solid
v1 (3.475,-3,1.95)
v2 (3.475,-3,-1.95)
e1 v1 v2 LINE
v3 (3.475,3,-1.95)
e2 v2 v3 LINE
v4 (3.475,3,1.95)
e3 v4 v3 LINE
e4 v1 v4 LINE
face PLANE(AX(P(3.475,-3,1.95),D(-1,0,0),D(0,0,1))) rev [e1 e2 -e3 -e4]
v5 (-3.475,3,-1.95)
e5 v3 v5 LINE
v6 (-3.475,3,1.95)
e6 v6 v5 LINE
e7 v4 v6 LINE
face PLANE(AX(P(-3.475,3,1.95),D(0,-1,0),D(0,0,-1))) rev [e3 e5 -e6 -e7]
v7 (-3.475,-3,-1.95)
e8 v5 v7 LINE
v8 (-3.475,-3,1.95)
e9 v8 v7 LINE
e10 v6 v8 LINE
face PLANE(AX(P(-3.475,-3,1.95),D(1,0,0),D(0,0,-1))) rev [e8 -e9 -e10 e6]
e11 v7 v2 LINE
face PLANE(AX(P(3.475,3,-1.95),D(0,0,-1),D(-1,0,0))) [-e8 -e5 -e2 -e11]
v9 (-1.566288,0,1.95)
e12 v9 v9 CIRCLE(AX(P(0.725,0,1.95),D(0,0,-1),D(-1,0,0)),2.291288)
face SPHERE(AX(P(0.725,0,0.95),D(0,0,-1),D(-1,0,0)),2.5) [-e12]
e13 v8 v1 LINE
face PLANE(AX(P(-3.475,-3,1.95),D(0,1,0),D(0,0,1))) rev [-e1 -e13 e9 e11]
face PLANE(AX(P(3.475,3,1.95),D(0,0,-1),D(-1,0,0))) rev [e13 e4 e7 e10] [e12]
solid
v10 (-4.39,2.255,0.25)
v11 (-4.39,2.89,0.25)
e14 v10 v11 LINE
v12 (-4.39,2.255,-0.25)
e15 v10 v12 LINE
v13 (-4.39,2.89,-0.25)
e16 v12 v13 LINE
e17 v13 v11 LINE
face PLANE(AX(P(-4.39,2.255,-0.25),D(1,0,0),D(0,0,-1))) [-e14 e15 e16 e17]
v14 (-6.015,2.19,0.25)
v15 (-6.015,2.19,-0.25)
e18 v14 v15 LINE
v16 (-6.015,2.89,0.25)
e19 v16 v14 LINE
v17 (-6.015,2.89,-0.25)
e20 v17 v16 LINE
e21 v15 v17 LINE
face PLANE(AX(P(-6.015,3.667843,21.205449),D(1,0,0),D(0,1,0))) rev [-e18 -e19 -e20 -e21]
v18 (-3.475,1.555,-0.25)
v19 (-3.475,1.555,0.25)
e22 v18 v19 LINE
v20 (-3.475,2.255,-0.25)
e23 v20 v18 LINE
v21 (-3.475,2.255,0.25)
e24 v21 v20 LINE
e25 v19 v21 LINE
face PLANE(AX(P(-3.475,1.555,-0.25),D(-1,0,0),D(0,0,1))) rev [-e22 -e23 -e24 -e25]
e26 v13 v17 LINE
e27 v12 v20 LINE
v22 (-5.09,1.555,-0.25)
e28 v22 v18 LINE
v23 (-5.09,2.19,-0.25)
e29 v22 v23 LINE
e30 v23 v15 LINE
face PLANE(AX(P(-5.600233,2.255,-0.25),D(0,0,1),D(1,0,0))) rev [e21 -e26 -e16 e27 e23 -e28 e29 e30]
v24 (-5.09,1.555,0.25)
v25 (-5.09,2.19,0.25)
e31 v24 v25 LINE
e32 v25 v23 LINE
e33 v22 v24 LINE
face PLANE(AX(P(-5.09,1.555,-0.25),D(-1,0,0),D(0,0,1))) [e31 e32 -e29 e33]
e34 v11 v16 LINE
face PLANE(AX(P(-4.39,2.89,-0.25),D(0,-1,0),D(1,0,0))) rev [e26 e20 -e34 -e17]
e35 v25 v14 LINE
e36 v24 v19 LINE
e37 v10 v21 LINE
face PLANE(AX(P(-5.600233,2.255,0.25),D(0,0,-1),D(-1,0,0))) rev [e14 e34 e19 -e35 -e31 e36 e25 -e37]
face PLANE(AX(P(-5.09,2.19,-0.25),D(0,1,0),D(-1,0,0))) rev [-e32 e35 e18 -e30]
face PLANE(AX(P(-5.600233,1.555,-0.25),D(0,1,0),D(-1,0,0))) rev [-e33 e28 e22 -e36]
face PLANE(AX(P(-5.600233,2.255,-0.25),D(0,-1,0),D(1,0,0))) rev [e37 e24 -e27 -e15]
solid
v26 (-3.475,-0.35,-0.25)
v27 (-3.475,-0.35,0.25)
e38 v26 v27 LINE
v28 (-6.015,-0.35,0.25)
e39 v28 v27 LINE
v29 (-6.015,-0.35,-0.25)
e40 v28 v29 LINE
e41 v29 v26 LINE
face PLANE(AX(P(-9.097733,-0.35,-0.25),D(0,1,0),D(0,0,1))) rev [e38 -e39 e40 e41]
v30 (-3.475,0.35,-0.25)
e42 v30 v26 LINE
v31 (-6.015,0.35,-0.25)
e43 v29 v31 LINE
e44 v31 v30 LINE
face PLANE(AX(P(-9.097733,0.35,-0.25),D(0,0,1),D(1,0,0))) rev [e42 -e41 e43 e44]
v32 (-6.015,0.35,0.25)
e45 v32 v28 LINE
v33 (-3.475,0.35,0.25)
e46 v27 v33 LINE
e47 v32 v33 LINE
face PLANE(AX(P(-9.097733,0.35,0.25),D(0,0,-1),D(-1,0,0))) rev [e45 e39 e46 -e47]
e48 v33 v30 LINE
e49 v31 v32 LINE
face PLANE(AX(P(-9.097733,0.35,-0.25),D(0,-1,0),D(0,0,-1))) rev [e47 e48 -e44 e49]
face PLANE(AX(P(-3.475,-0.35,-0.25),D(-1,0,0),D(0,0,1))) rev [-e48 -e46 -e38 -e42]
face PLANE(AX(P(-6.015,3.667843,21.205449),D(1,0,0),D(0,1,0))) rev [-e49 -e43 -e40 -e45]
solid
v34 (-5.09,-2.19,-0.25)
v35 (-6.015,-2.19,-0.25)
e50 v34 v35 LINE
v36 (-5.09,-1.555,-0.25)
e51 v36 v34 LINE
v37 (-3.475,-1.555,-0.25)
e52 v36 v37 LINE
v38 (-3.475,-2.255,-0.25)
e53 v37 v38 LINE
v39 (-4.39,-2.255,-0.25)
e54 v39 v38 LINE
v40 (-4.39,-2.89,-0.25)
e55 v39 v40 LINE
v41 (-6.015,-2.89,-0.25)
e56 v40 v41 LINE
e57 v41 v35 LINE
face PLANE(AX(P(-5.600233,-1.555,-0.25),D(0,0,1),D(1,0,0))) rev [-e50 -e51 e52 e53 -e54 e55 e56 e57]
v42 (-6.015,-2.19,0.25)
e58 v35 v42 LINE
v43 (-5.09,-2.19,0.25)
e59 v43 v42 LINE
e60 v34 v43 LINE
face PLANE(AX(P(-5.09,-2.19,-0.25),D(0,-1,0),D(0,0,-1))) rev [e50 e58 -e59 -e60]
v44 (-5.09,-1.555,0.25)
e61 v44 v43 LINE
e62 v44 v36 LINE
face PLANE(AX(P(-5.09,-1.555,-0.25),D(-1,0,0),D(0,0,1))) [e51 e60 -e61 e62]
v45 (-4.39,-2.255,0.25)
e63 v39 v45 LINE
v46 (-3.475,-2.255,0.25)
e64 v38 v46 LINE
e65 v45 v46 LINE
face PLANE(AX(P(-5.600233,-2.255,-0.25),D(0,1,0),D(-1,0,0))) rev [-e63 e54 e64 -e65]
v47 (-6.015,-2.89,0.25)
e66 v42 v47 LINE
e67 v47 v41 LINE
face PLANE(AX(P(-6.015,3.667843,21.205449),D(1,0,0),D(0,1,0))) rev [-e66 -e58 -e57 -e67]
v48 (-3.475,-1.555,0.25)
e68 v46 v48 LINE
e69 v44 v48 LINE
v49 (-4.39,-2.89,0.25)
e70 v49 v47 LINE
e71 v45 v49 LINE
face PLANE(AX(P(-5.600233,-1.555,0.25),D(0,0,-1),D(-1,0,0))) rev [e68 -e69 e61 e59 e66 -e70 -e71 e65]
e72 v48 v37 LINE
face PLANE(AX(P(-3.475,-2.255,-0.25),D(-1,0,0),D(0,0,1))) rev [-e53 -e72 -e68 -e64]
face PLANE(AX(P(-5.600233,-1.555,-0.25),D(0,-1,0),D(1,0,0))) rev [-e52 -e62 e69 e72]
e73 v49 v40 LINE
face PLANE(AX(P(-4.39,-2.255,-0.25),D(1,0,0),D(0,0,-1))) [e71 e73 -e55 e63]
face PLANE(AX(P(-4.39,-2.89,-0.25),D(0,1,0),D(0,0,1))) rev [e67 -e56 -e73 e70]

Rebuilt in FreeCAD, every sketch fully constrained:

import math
import FreeCAD as App
import Part
import Sketcher
from FreeCAD import Vector

doc = App.newDocument("Part")
body = doc.addObject("PartDesign::Body", "Body")

# Sketch on XY plane
sketch1 = body.newObject("Sketcher::SketchObject", "Sketch")
sketch1.AttachmentSupport = (doc.getObject("XY_Plane"), [""])
sketch1.MapMode = "FlatFace"
sketch1.addGeometry(Part.LineSegment(Vector(-3, 3, 0), Vector(-3, -3, 0)), False)
sketch1.addGeometry(Part.LineSegment(Vector(-3, -3, 0), Vector(3, -3, 0)), False)
sketch1.addGeometry(Part.LineSegment(Vector(3, -3, 0), Vector(3, 3, 0)), False)
sketch1.addGeometry(Part.LineSegment(Vector(3, 3, 0), Vector(-3, 3, 0)), False)
sketch1.addConstraint(Sketcher.Constraint("Coincident", 0, 2, 1, 1))
sketch1.addConstraint(Sketcher.Constraint("Coincident", 1, 2, 2, 1))
sketch1.addConstraint(Sketcher.Constraint("Coincident", 2, 2, 3, 1))
sketch1.addConstraint(Sketcher.Constraint("Coincident", 3, 2, 0, 1))
sketch1.addConstraint(Sketcher.Constraint("Vertical", 0))
sketch1.addConstraint(Sketcher.Constraint("Horizontal", 1))
sketch1.addConstraint(Sketcher.Constraint("Vertical", 2))
sketch1.addConstraint(Sketcher.Constraint("Horizontal", 3))
sketch1.addConstraint(Sketcher.Constraint("Symmetric", 0, 2, 2, 2, -1, 1))
sketch1.addConstraint(Sketcher.Constraint("DistanceY", 0, 2, 0, 1, 6.0))
sketch1.addConstraint(Sketcher.Constraint("DistanceX", 1, 1, 1, 2, 6.95))
pad1 = body.newObject("PartDesign::Pad", "Pad")
pad1.Profile = sketch1
pad1.Length = 3.9
pad1.Midplane = True

# Sketch on XZ plane
sketch2 = body.newObject("Sketcher::SketchObject", "Sketch001")
sketch2.AttachmentSupport = (doc.getObject("XZ_Plane"), [""])
sketch2.MapMode = "FlatFace"
sketch2.addGeometry(Part.LineSegment(Vector(0.7, 1.9, 0), Vector(-1.6, 1.9, 0)), False)
sketch2.addGeometry(Part.ArcOfCircle(Part.Circle(Vector(0.7, 1, 0), Vector(0, 0, 1), 2.5), math.radians(90), math.radians(156)), False)
sketch2.addGeometry(Part.LineSegment(Vector(0.7, 3.5, 0), Vector(0.7, 1.9, 0)), False)
sketch2.addGeometry(Part.LineSegment(Vector(0.7, 1, 0), Vector(0.7, 3.5, 0)), True)  # axis
sketch2.addConstraint(Sketcher.Constraint("Coincident", 0, 2, 1, 2))
sketch2.addConstraint(Sketcher.Constraint("Coincident", 1, 1, 2, 1))
sketch2.addConstraint(Sketcher.Constraint("Coincident", 2, 2, 0, 1))
sketch2.addConstraint(Sketcher.Constraint("Horizontal", 0))
sketch2.addConstraint(Sketcher.Constraint("Vertical", 2))
sketch2.addConstraint(Sketcher.Constraint("Vertical", 3))
sketch2.addConstraint(Sketcher.Constraint("Coincident", 3, 1, 1, 3))
sketch2.addConstraint(Sketcher.Constraint("Coincident", 3, 2, 1, 1))
sketch2.addConstraint(Sketcher.Constraint("Radius", 1, 2.5))
sketch2.addConstraint(Sketcher.Constraint("DistanceY", 2, 2, 2, 1, 1.5))
sketch2.addConstraint(Sketcher.Constraint("DistanceY", -1, 1, 1, 3, 0.95))
sketch2.addConstraint(Sketcher.Constraint("DistanceX", -1, 1, 1, 3, 0.725))
revolution = body.newObject("PartDesign::Revolution", "Revolution")
revolution.Profile = sketch2
revolution.ReferenceAxis = (sketch2, ["Axis0"])
revolution.Angle = 360
body2 = doc.addObject("PartDesign::Body", "Body001")

# Sketch on YZ plane
sketch3 = body2.newObject("Sketcher::SketchObject", "Sketch002")
sketch3.AttachmentSupport = (doc.getObject("YZ_Plane001"), [""])
sketch3.MapMode = "FlatFace"
sketch3.AttachmentOffset = App.Placement(Vector(0, 0, -3.475), App.Rotation())
sketch3.addGeometry(Part.LineSegment(Vector(2.3, -0.2, 0), Vector(1.6, -0.2, 0)), False)
sketch3.addGeometry(Part.LineSegment(Vector(1.6, -0.2, 0), Vector(1.6, 0.2, 0)), False)
sketch3.addGeometry(Part.LineSegment(Vector(1.6, 0.2, 0), Vector(2.3, 0.2, 0)), False)
sketch3.addGeometry(Part.LineSegment(Vector(2.3, 0.2, 0), Vector(2.3, -0.2, 0)), False)
sketch3.addConstraint(Sketcher.Constraint("Coincident", 0, 2, 1, 1))
sketch3.addConstraint(Sketcher.Constraint("Coincident", 1, 2, 2, 1))
sketch3.addConstraint(Sketcher.Constraint("Coincident", 2, 2, 3, 1))
sketch3.addConstraint(Sketcher.Constraint("Coincident", 3, 2, 0, 1))
sketch3.addConstraint(Sketcher.Constraint("Horizontal", 0))
sketch3.addConstraint(Sketcher.Constraint("Vertical", 1))
sketch3.addConstraint(Sketcher.Constraint("Horizontal", 2))
sketch3.addConstraint(Sketcher.Constraint("Vertical", 3))
sketch3.addConstraint(Sketcher.Constraint("DistanceX", 0, 2, 0, 1, 0.7))
sketch3.addConstraint(Sketcher.Constraint("DistanceY", 1, 1, 1, 2, 0.5))
sketch3.addConstraint(Sketcher.Constraint("DistanceY", 0, 2, -1, 1, 0.25))
sketch3.addConstraint(Sketcher.Constraint("DistanceX", -1, 1, 0, 2, 1.555))

# Sketch on XY plane
sketch4 = body2.newObject("Sketcher::SketchObject", "Sketch003")
sketch4.AttachmentSupport = (doc.getObject("XY_Plane001"), [""])
sketch4.MapMode = "FlatFace"
sketch4.addGeometry(Part.LineSegment(Vector(-3.5, 1.9, 0), Vector(-4.7, 1.9, 0)), False)
sketch4.addGeometry(Part.LineSegment(Vector(-4.7, 1.9, 0), Vector(-4.7, 2.5, 0)), False)
sketch4.addGeometry(Part.LineSegment(Vector(-4.7, 2.5, 0), Vector(-8.2, 2.5, 0)), False)
sketch4.addConstraint(Sketcher.Constraint("Coincident", 0, 2, 1, 1))
sketch4.addConstraint(Sketcher.Constraint("Coincident", 1, 2, 2, 1))
sketch4.addConstraint(Sketcher.Constraint("Horizontal", 0))
sketch4.addConstraint(Sketcher.Constraint("Vertical", 1))
sketch4.addConstraint(Sketcher.Constraint("Horizontal", 2))
sketch4.addConstraint(Sketcher.Constraint("DistanceX", 0, 2, 0, 1, 1.265))
sketch4.addConstraint(Sketcher.Constraint("DistanceY", 1, 1, 1, 2, 0.635))
sketch4.addConstraint(Sketcher.Constraint("DistanceX", 0, 2, -1, 1, 4.74))
sketch4.addConstraint(Sketcher.Constraint("DistanceY", -1, 1, 1, 2, 2.54))
sketch4.addConstraint(Sketcher.Constraint("DistanceX", 2, 2, 2, 1, 3.4975))
doc.recompute()

additivepipe = body2.newObject("PartDesign::AdditivePipe", "AdditivePipe")
additivepipe.Profile = sketch3
additivepipe.Spine = (sketch4, ["Edge1", "Edge2", "Edge3"])
additivepipe.Transition = "Right corner"
body3 = doc.addObject("PartDesign::Body", "Body002")

# Sketch on YZ plane
sketch5 = body3.newObject("Sketcher::SketchObject", "Sketch004")
sketch5.AttachmentSupport = (doc.getObject("YZ_Plane002"), [""])
sketch5.MapMode = "FlatFace"
sketch5.AttachmentOffset = App.Placement(Vector(0, 0, -3.475), App.Rotation())
sketch5.addGeometry(Part.LineSegment(Vector(0.3, -0.2, 0), Vector(-0.3, -0.2, 0)), False)
sketch5.addGeometry(Part.LineSegment(Vector(-0.3, -0.2, 0), Vector(-0.3, 0.2, 0)), False)
sketch5.addGeometry(Part.LineSegment(Vector(-0.3, 0.2, 0), Vector(0.3, 0.2, 0)), False)
sketch5.addGeometry(Part.LineSegment(Vector(0.3, 0.2, 0), Vector(0.3, -0.2, 0)), False)
sketch5.addConstraint(Sketcher.Constraint("Coincident", 0, 2, 1, 1))
sketch5.addConstraint(Sketcher.Constraint("Coincident", 1, 2, 2, 1))
sketch5.addConstraint(Sketcher.Constraint("Coincident", 2, 2, 3, 1))
sketch5.addConstraint(Sketcher.Constraint("Coincident", 3, 2, 0, 1))
sketch5.addConstraint(Sketcher.Constraint("Horizontal", 0))
sketch5.addConstraint(Sketcher.Constraint("Vertical", 1))
sketch5.addConstraint(Sketcher.Constraint("Horizontal", 2))
sketch5.addConstraint(Sketcher.Constraint("Vertical", 3))
sketch5.addConstraint(Sketcher.Constraint("Symmetric", 0, 2, 2, 2, -1, 1))
sketch5.addConstraint(Sketcher.Constraint("DistanceX", 0, 2, 0, 1, 0.7))
sketch5.addConstraint(Sketcher.Constraint("DistanceY", 1, 1, 1, 2, 0.5))
pad2 = body3.newObject("PartDesign::Pad", "Pad001")
pad2.Profile = sketch5
pad2.Length = 4.7625
pad2.Reversed = True
body4 = doc.addObject("PartDesign::Body", "Body003")

# Sketch on YZ plane
sketch6 = body4.newObject("Sketcher::SketchObject", "Sketch005")
sketch6.AttachmentSupport = (doc.getObject("YZ_Plane003"), [""])
sketch6.MapMode = "FlatFace"
sketch6.AttachmentOffset = App.Placement(Vector(0, 0, -3.475), App.Rotation())
sketch6.addGeometry(Part.LineSegment(Vector(-1.6, -0.2, 0), Vector(-2.3, -0.2, 0)), False)
sketch6.addGeometry(Part.LineSegment(Vector(-2.3, -0.2, 0), Vector(-2.3, 0.2, 0)), False)
sketch6.addGeometry(Part.LineSegment(Vector(-2.3, 0.2, 0), Vector(-1.6, 0.2, 0)), False)
sketch6.addGeometry(Part.LineSegment(Vector(-1.6, 0.2, 0), Vector(-1.6, -0.2, 0)), False)
sketch6.addConstraint(Sketcher.Constraint("Coincident", 0, 2, 1, 1))
sketch6.addConstraint(Sketcher.Constraint("Coincident", 1, 2, 2, 1))
sketch6.addConstraint(Sketcher.Constraint("Coincident", 2, 2, 3, 1))
sketch6.addConstraint(Sketcher.Constraint("Coincident", 3, 2, 0, 1))
sketch6.addConstraint(Sketcher.Constraint("Horizontal", 0))
sketch6.addConstraint(Sketcher.Constraint("Vertical", 1))
sketch6.addConstraint(Sketcher.Constraint("Horizontal", 2))
sketch6.addConstraint(Sketcher.Constraint("Vertical", 3))
sketch6.addConstraint(Sketcher.Constraint("DistanceX", 0, 2, 0, 1, 0.7))
sketch6.addConstraint(Sketcher.Constraint("DistanceY", 1, 1, 1, 2, 0.5))
sketch6.addConstraint(Sketcher.Constraint("DistanceY", 0, 2, -1, 1, 0.25))
sketch6.addConstraint(Sketcher.Constraint("DistanceX", 0, 2, -1, 1, 2.255))

# Sketch on XY plane
sketch7 = body4.newObject("Sketcher::SketchObject", "Sketch006")
sketch7.AttachmentSupport = (doc.getObject("XY_Plane003"), [""])
sketch7.MapMode = "FlatFace"
sketch7.addGeometry(Part.LineSegment(Vector(-3.5, -1.9, 0), Vector(-4.7, -1.9, 0)), False)
sketch7.addGeometry(Part.LineSegment(Vector(-4.7, -1.9, 0), Vector(-4.7, -2.5, 0)), False)
sketch7.addGeometry(Part.LineSegment(Vector(-4.7, -2.5, 0), Vector(-8.2, -2.5, 0)), False)
sketch7.addConstraint(Sketcher.Constraint("Coincident", 0, 2, 1, 1))
sketch7.addConstraint(Sketcher.Constraint("Coincident", 1, 2, 2, 1))
sketch7.addConstraint(Sketcher.Constraint("Horizontal", 0))
sketch7.addConstraint(Sketcher.Constraint("Vertical", 1))
sketch7.addConstraint(Sketcher.Constraint("Horizontal", 2))
sketch7.addConstraint(Sketcher.Constraint("DistanceX", 0, 2, 0, 1, 1.265))
sketch7.addConstraint(Sketcher.Constraint("DistanceY", 1, 2, 1, 1, 0.635))
sketch7.addConstraint(Sketcher.Constraint("DistanceX", 0, 2, -1, 1, 4.74))
sketch7.addConstraint(Sketcher.Constraint("DistanceY", 1, 2, -1, 1, 2.54))
sketch7.addConstraint(Sketcher.Constraint("DistanceX", 2, 2, 2, 1, 3.4975))
doc.recompute()

additivepipe2 = body4.newObject("PartDesign::AdditivePipe", "AdditivePipe001")
additivepipe2.Profile = sketch6
additivepipe2.Spine = (sketch7, ["Edge1", "Edge2", "Edge3"])
additivepipe2.Transition = "Right corner"
body2.AllowCompound = True
doc.recompute()

boolean = body2.newObject("PartDesign::Boolean", "Boolean")
boolean.Type = "Fuse"
boolean.addObjects([body3])
doc.recompute()

boolean2 = body2.newObject("PartDesign::Boolean", "Boolean001")
boolean2.Type = "Fuse"
boolean2.addObjects([body4])

# Sketch on XY plane
sketch8 = body2.newObject("Sketcher::SketchObject", "Sketch007")
sketch8.AttachmentSupport = (doc.getObject("XY_Plane001"), [""])
sketch8.MapMode = "FlatFace"
sketch8.AttachmentOffset = App.Placement(Vector(0, 0, -0.25), App.Rotation())
sketch8.addGeometry(Part.LineSegment(Vector(-7.7, 2.9, 0), Vector(-7.7, 2.2, 0)), False)
sketch8.addGeometry(Part.LineSegment(Vector(-7.7, 2.2, 0), Vector(-8.2, 2.2, 0)), False)
sketch8.addGeometry(Part.LineSegment(Vector(-8.2, 2.2, 0), Vector(-8.2, 2.9, 0)), False)
sketch8.addGeometry(Part.LineSegment(Vector(-8.2, 2.9, 0), Vector(-7.7, 2.9, 0)), False)
sketch8.addGeometry(Part.LineSegment(Vector(-7.7, 0.3, 0), Vector(-7.7, -0.3, 0)), False)
sketch8.addGeometry(Part.LineSegment(Vector(-7.7, -0.3, 0), Vector(-8.2, -0.3, 0)), False)
sketch8.addGeometry(Part.LineSegment(Vector(-8.2, -0.3, 0), Vector(-8.2, 0.3, 0)), False)
sketch8.addGeometry(Part.LineSegment(Vector(-8.2, 0.3, 0), Vector(-7.7, 0.3, 0)), False)
sketch8.addGeometry(Part.LineSegment(Vector(-7.7, -2.2, 0), Vector(-7.7, -2.9, 0)), False)
sketch8.addGeometry(Part.LineSegment(Vector(-7.7, -2.9, 0), Vector(-8.2, -2.9, 0)), False)
sketch8.addGeometry(Part.LineSegment(Vector(-8.2, -2.9, 0), Vector(-8.2, -2.2, 0)), False)
sketch8.addGeometry(Part.LineSegment(Vector(-8.2, -2.2, 0), Vector(-7.7, -2.2, 0)), False)
sketch8.addConstraint(Sketcher.Constraint("Coincident", 0, 2, 1, 1))
sketch8.addConstraint(Sketcher.Constraint("Coincident", 1, 2, 2, 1))
sketch8.addConstraint(Sketcher.Constraint("Coincident", 2, 2, 3, 1))
sketch8.addConstraint(Sketcher.Constraint("Coincident", 3, 2, 0, 1))
sketch8.addConstraint(Sketcher.Constraint("Coincident", 4, 2, 5, 1))
sketch8.addConstraint(Sketcher.Constraint("Coincident", 5, 2, 6, 1))
sketch8.addConstraint(Sketcher.Constraint("Coincident", 6, 2, 7, 1))
sketch8.addConstraint(Sketcher.Constraint("Coincident", 7, 2, 4, 1))
sketch8.addConstraint(Sketcher.Constraint("Coincident", 8, 2, 9, 1))
sketch8.addConstraint(Sketcher.Constraint("Coincident", 9, 2, 10, 1))
sketch8.addConstraint(Sketcher.Constraint("Coincident", 10, 2, 11, 1))
sketch8.addConstraint(Sketcher.Constraint("Coincident", 11, 2, 8, 1))
sketch8.addConstraint(Sketcher.Constraint("Vertical", 0))
sketch8.addConstraint(Sketcher.Constraint("Horizontal", 1))
sketch8.addConstraint(Sketcher.Constraint("Vertical", 2))
sketch8.addConstraint(Sketcher.Constraint("Horizontal", 3))
sketch8.addConstraint(Sketcher.Constraint("Vertical", 4))
sketch8.addConstraint(Sketcher.Constraint("Horizontal", 5))
sketch8.addConstraint(Sketcher.Constraint("Vertical", 6))
sketch8.addConstraint(Sketcher.Constraint("Horizontal", 7))
sketch8.addConstraint(Sketcher.Constraint("Vertical", 8))
sketch8.addConstraint(Sketcher.Constraint("Horizontal", 9))
sketch8.addConstraint(Sketcher.Constraint("Vertical", 10))
sketch8.addConstraint(Sketcher.Constraint("Horizontal", 11))
sketch8.addConstraint(Sketcher.Constraint("Symmetric", 3, 2, 8, 2, -1))
sketch8.addConstraint(Sketcher.Constraint("Symmetric", 1, 2, 10, 2, -1))
sketch8.addConstraint(Sketcher.Constraint("Vertical", 3, 2, 4, 2))
sketch8.addConstraint(Sketcher.Constraint("Vertical", 2, 2, 5, 2))
sketch8.addConstraint(Sketcher.Constraint("Equal", 2, 4))
sketch8.addConstraint(Sketcher.Constraint("DistanceX", 1, 2, 1, 1, 0.5))
sketch8.addConstraint(Sketcher.Constraint("DistanceY", 0, 2, 0, 1, 0.7))
sketch8.addConstraint(Sketcher.Constraint("DistanceY", -1, 1, 0, 2, 2.19))
sketch8.addConstraint(Sketcher.Constraint("DistanceY", 4, 2, -1, 1, 0.35))
sketch8.addConstraint(Sketcher.Constraint("DistanceX", 0, 2, -1, 1, 7.7375))
pad3 = body2.newObject("PartDesign::Pad", "Pad002")
pad3.Profile = sketch8
pad3.Length = 2.54
pad3.Reversed = True

# Sketch on XY plane
sketch9 = body2.newObject("Sketcher::SketchObject", "Sketch008")
sketch9.AttachmentSupport = (doc.getObject("XY_Plane001"), [""])
sketch9.MapMode = "FlatFace"
sketch9.AttachmentOffset = App.Placement(Vector(0, 0, 0.25), App.Rotation())
sketch9.addGeometry(Part.LineSegment(Vector(-6, -36, 0), Vector(-6, 37, 0)), False)
sketch9.addGeometry(Part.LineSegment(Vector(-6, 37, 0), Vector(-72, 37, 0)), False)
sketch9.addGeometry(Part.LineSegment(Vector(-72, 37, 0), Vector(-72, -36, 0)), False)
sketch9.addGeometry(Part.LineSegment(Vector(-72, -36, 0), Vector(-6, -36, 0)), False)
sketch9.addConstraint(Sketcher.Constraint("Coincident", 0, 2, 1, 1))
sketch9.addConstraint(Sketcher.Constraint("Coincident", 1, 2, 2, 1))
sketch9.addConstraint(Sketcher.Constraint("Coincident", 2, 2, 3, 1))
sketch9.addConstraint(Sketcher.Constraint("Coincident", 3, 2, 0, 1))
sketch9.addConstraint(Sketcher.Constraint("Vertical", 0))
sketch9.addConstraint(Sketcher.Constraint("Horizontal", 1))
sketch9.addConstraint(Sketcher.Constraint("Vertical", 2))
sketch9.addConstraint(Sketcher.Constraint("Horizontal", 3))
sketch9.addConstraint(Sketcher.Constraint("DistanceX", 0, 2, -1, 1, 6.015))
sketch9.addConstraint(Sketcher.Constraint("DistanceX", 1, 2, 1, 1, 66.393143))
sketch9.addConstraint(Sketcher.Constraint("DistanceY", 0, 1, 0, 2, 73.312197))
sketch9.addConstraint(Sketcher.Constraint("DistanceY", -1, 1, 0, 2, 36.864414))
pocket1 = body2.newObject("PartDesign::Pocket", "Pocket")
pocket1.Profile = sketch9
pocket1.Type = "ThroughAll"
pocket1.Midplane = True

doc.recompute()
